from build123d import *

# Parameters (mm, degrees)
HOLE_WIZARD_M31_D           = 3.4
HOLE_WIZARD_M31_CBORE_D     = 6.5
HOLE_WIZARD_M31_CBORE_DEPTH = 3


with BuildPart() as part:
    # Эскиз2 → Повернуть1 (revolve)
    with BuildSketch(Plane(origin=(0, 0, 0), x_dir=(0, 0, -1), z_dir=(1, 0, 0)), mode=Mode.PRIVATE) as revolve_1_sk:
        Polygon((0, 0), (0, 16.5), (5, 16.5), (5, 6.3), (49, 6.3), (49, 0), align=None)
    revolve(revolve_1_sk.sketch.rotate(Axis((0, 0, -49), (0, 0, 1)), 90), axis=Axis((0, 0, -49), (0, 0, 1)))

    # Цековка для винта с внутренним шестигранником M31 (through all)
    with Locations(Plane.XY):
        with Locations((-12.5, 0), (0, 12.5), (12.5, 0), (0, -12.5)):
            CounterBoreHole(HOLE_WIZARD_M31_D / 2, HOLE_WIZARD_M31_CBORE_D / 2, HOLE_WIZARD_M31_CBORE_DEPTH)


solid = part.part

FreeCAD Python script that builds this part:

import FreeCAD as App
import Part
import Sketcher
from FreeCAD import Vector
Q = App.Units.Quantity

doc = App.newDocument("Part")
params = doc.addObject("Spreadsheet::Sheet", "Params")
for row, (alias, value) in enumerate([
    ("sketch1_height", "49 mm"),
    ("sketch1_height2", "44 mm"),
    ("sketch1_width", "16.5 mm"),
    ("sketch1_width2", "6.3 mm"),
    ("revolution_angle", "360 deg"),
    ("sketch2_diameter", "3.4 mm"),
    ("hole_diameter", "3.4 mm"),
    ("hole_cbore_diameter", "6.5 mm"),
    ("hole_cbore_depth", "3 mm"),
], start=1):
    params.set(f"A{row}", alias)
    params.set(f"B{row}", "=" + value)
    params.setAlias(f"B{row}", alias)

body = doc.addObject("PartDesign::Body", "Body")

# Sketch on YZ plane
sketch1 = body.newObject("Sketcher::SketchObject", "Sketch")
sketch1.AttachmentSupport = (doc.getObject("YZ_Plane"), [""])
sketch1.MapMode = "FlatFace"
sketch1.addGeometry([
    Part.LineSegment(Vector(16, 0, 0), Vector(0, 0, 0)),  # 0
    Part.LineSegment(Vector(0, 0, 0), Vector(0, -49, 0)),  # 1
    Part.LineSegment(Vector(0, -49, 0), Vector(6, -49, 0)),  # 2
    Part.LineSegment(Vector(6, -49, 0), Vector(6, -5, 0)),  # 3
    Part.LineSegment(Vector(6, -5, 0), Vector(16, -5, 0)),  # 4
    Part.LineSegment(Vector(16, -5, 0), Vector(16, 0, 0)),  # 5
], False)
sketch1.addConstraint([
    Sketcher.Constraint("Coincident", 0, 2, 1, 1),
    Sketcher.Constraint("Coincident", 1, 2, 2, 1),
    Sketcher.Constraint("Coincident", 2, 2, 3, 1),
    Sketcher.Constraint("Coincident", 3, 2, 4, 1),
    Sketcher.Constraint("Coincident", 4, 2, 5, 1),
    Sketcher.Constraint("Coincident", 5, 2, 0, 1),
    Sketcher.Constraint("Horizontal", 0),
    Sketcher.Constraint("Vertical", 1),
    Sketcher.Constraint("Horizontal", 2),
    Sketcher.Constraint("Vertical", 3),
    Sketcher.Constraint("Horizontal", 4),
    Sketcher.Constraint("Vertical", 5),
    Sketcher.Constraint("Coincident", 0, 2, -1, 1),
    Sketcher.Constraint("DistanceY", 1, 2, 1, 1, Q("49 mm")),
    Sketcher.Constraint("DistanceY", 3, 1, 3, 2, Q("44 mm")),
    Sketcher.Constraint("DistanceX", 0, 2, 0, 1, Q("16.5 mm")),
    Sketcher.Constraint("DistanceX", 2, 1, 2, 2, Q("6.3 mm")),
])
sketch1.setExpression("Constraints[13]", "Params.sketch1_height")
sketch1.setExpression("Constraints[14]", "Params.sketch1_height2")
sketch1.setExpression("Constraints[15]", "Params.sketch1_width")
sketch1.setExpression("Constraints[16]", "Params.sketch1_width2")
revolution = body.newObject("PartDesign::Revolution", "Revolution")
revolution.Profile = sketch1
revolution.ReferenceAxis = (sketch1, ["V_Axis"])
revolution.setExpression("Angle", "Params.revolution_angle")

# Sketch on XY plane
sketch2 = body.newObject("Sketcher::SketchObject", "Sketch001")
sketch2.AttachmentSupport = (doc.getObject("XY_Plane"), [""])
sketch2.MapMode = "FlatFace"
sketch2.addGeometry([
    Part.Circle(Vector(-12.5, 0, 0), Vector(0, 0, 1), 1.7),
    Part.Circle(Vector(0, 12.5, 0), Vector(0, 0, 1), 1.7),
    Part.Circle(Vector(12.5, 0, 0), Vector(0, 0, 1), 1.7),
    Part.Circle(Vector(0, -12.5, 0), Vector(0, 0, 1), 1.7),
], False)
sketch2.addConstraint([
    Sketcher.Constraint("Equal", 0, 1),
    Sketcher.Constraint("Equal", 1, 2),
    Sketcher.Constraint("Equal", 2, 3),
    Sketcher.Constraint("Symmetric", 0, 3, 2, 3, -1, 1),
    Sketcher.Constraint("Symmetric", 1, 3, 3, 3, -1, 1),
    Sketcher.Constraint("PointOnObject", 0, 3, -1),
    Sketcher.Constraint("PointOnObject", 1, 3, -2),
    Sketcher.Constraint("Diameter", 0, Q("3.4 mm")),
    Sketcher.Constraint("DistanceX", 0, 3, 2, 3, Q("25 mm")),
    Sketcher.Constraint("DistanceY", 3, 3, 1, 3, Q("25 mm")),
])
sketch2.setExpression("Constraints[7]", "Params.sketch2_diameter")
doc.recompute()
hole = body.newObject("PartDesign::Hole", "Hole")
hole.Profile = sketch2
hole.ThreadType = "None"
hole.setExpression("Diameter", "Params.hole_diameter")
hole.DepthType = "ThroughAll"
hole.HoleCutType = "Counterbore"
hole.setExpression("HoleCutDiameter", "Params.hole_cbore_diameter")
hole.setExpression("HoleCutDepth", "Params.hole_cbore_depth")

doc.recompute()
